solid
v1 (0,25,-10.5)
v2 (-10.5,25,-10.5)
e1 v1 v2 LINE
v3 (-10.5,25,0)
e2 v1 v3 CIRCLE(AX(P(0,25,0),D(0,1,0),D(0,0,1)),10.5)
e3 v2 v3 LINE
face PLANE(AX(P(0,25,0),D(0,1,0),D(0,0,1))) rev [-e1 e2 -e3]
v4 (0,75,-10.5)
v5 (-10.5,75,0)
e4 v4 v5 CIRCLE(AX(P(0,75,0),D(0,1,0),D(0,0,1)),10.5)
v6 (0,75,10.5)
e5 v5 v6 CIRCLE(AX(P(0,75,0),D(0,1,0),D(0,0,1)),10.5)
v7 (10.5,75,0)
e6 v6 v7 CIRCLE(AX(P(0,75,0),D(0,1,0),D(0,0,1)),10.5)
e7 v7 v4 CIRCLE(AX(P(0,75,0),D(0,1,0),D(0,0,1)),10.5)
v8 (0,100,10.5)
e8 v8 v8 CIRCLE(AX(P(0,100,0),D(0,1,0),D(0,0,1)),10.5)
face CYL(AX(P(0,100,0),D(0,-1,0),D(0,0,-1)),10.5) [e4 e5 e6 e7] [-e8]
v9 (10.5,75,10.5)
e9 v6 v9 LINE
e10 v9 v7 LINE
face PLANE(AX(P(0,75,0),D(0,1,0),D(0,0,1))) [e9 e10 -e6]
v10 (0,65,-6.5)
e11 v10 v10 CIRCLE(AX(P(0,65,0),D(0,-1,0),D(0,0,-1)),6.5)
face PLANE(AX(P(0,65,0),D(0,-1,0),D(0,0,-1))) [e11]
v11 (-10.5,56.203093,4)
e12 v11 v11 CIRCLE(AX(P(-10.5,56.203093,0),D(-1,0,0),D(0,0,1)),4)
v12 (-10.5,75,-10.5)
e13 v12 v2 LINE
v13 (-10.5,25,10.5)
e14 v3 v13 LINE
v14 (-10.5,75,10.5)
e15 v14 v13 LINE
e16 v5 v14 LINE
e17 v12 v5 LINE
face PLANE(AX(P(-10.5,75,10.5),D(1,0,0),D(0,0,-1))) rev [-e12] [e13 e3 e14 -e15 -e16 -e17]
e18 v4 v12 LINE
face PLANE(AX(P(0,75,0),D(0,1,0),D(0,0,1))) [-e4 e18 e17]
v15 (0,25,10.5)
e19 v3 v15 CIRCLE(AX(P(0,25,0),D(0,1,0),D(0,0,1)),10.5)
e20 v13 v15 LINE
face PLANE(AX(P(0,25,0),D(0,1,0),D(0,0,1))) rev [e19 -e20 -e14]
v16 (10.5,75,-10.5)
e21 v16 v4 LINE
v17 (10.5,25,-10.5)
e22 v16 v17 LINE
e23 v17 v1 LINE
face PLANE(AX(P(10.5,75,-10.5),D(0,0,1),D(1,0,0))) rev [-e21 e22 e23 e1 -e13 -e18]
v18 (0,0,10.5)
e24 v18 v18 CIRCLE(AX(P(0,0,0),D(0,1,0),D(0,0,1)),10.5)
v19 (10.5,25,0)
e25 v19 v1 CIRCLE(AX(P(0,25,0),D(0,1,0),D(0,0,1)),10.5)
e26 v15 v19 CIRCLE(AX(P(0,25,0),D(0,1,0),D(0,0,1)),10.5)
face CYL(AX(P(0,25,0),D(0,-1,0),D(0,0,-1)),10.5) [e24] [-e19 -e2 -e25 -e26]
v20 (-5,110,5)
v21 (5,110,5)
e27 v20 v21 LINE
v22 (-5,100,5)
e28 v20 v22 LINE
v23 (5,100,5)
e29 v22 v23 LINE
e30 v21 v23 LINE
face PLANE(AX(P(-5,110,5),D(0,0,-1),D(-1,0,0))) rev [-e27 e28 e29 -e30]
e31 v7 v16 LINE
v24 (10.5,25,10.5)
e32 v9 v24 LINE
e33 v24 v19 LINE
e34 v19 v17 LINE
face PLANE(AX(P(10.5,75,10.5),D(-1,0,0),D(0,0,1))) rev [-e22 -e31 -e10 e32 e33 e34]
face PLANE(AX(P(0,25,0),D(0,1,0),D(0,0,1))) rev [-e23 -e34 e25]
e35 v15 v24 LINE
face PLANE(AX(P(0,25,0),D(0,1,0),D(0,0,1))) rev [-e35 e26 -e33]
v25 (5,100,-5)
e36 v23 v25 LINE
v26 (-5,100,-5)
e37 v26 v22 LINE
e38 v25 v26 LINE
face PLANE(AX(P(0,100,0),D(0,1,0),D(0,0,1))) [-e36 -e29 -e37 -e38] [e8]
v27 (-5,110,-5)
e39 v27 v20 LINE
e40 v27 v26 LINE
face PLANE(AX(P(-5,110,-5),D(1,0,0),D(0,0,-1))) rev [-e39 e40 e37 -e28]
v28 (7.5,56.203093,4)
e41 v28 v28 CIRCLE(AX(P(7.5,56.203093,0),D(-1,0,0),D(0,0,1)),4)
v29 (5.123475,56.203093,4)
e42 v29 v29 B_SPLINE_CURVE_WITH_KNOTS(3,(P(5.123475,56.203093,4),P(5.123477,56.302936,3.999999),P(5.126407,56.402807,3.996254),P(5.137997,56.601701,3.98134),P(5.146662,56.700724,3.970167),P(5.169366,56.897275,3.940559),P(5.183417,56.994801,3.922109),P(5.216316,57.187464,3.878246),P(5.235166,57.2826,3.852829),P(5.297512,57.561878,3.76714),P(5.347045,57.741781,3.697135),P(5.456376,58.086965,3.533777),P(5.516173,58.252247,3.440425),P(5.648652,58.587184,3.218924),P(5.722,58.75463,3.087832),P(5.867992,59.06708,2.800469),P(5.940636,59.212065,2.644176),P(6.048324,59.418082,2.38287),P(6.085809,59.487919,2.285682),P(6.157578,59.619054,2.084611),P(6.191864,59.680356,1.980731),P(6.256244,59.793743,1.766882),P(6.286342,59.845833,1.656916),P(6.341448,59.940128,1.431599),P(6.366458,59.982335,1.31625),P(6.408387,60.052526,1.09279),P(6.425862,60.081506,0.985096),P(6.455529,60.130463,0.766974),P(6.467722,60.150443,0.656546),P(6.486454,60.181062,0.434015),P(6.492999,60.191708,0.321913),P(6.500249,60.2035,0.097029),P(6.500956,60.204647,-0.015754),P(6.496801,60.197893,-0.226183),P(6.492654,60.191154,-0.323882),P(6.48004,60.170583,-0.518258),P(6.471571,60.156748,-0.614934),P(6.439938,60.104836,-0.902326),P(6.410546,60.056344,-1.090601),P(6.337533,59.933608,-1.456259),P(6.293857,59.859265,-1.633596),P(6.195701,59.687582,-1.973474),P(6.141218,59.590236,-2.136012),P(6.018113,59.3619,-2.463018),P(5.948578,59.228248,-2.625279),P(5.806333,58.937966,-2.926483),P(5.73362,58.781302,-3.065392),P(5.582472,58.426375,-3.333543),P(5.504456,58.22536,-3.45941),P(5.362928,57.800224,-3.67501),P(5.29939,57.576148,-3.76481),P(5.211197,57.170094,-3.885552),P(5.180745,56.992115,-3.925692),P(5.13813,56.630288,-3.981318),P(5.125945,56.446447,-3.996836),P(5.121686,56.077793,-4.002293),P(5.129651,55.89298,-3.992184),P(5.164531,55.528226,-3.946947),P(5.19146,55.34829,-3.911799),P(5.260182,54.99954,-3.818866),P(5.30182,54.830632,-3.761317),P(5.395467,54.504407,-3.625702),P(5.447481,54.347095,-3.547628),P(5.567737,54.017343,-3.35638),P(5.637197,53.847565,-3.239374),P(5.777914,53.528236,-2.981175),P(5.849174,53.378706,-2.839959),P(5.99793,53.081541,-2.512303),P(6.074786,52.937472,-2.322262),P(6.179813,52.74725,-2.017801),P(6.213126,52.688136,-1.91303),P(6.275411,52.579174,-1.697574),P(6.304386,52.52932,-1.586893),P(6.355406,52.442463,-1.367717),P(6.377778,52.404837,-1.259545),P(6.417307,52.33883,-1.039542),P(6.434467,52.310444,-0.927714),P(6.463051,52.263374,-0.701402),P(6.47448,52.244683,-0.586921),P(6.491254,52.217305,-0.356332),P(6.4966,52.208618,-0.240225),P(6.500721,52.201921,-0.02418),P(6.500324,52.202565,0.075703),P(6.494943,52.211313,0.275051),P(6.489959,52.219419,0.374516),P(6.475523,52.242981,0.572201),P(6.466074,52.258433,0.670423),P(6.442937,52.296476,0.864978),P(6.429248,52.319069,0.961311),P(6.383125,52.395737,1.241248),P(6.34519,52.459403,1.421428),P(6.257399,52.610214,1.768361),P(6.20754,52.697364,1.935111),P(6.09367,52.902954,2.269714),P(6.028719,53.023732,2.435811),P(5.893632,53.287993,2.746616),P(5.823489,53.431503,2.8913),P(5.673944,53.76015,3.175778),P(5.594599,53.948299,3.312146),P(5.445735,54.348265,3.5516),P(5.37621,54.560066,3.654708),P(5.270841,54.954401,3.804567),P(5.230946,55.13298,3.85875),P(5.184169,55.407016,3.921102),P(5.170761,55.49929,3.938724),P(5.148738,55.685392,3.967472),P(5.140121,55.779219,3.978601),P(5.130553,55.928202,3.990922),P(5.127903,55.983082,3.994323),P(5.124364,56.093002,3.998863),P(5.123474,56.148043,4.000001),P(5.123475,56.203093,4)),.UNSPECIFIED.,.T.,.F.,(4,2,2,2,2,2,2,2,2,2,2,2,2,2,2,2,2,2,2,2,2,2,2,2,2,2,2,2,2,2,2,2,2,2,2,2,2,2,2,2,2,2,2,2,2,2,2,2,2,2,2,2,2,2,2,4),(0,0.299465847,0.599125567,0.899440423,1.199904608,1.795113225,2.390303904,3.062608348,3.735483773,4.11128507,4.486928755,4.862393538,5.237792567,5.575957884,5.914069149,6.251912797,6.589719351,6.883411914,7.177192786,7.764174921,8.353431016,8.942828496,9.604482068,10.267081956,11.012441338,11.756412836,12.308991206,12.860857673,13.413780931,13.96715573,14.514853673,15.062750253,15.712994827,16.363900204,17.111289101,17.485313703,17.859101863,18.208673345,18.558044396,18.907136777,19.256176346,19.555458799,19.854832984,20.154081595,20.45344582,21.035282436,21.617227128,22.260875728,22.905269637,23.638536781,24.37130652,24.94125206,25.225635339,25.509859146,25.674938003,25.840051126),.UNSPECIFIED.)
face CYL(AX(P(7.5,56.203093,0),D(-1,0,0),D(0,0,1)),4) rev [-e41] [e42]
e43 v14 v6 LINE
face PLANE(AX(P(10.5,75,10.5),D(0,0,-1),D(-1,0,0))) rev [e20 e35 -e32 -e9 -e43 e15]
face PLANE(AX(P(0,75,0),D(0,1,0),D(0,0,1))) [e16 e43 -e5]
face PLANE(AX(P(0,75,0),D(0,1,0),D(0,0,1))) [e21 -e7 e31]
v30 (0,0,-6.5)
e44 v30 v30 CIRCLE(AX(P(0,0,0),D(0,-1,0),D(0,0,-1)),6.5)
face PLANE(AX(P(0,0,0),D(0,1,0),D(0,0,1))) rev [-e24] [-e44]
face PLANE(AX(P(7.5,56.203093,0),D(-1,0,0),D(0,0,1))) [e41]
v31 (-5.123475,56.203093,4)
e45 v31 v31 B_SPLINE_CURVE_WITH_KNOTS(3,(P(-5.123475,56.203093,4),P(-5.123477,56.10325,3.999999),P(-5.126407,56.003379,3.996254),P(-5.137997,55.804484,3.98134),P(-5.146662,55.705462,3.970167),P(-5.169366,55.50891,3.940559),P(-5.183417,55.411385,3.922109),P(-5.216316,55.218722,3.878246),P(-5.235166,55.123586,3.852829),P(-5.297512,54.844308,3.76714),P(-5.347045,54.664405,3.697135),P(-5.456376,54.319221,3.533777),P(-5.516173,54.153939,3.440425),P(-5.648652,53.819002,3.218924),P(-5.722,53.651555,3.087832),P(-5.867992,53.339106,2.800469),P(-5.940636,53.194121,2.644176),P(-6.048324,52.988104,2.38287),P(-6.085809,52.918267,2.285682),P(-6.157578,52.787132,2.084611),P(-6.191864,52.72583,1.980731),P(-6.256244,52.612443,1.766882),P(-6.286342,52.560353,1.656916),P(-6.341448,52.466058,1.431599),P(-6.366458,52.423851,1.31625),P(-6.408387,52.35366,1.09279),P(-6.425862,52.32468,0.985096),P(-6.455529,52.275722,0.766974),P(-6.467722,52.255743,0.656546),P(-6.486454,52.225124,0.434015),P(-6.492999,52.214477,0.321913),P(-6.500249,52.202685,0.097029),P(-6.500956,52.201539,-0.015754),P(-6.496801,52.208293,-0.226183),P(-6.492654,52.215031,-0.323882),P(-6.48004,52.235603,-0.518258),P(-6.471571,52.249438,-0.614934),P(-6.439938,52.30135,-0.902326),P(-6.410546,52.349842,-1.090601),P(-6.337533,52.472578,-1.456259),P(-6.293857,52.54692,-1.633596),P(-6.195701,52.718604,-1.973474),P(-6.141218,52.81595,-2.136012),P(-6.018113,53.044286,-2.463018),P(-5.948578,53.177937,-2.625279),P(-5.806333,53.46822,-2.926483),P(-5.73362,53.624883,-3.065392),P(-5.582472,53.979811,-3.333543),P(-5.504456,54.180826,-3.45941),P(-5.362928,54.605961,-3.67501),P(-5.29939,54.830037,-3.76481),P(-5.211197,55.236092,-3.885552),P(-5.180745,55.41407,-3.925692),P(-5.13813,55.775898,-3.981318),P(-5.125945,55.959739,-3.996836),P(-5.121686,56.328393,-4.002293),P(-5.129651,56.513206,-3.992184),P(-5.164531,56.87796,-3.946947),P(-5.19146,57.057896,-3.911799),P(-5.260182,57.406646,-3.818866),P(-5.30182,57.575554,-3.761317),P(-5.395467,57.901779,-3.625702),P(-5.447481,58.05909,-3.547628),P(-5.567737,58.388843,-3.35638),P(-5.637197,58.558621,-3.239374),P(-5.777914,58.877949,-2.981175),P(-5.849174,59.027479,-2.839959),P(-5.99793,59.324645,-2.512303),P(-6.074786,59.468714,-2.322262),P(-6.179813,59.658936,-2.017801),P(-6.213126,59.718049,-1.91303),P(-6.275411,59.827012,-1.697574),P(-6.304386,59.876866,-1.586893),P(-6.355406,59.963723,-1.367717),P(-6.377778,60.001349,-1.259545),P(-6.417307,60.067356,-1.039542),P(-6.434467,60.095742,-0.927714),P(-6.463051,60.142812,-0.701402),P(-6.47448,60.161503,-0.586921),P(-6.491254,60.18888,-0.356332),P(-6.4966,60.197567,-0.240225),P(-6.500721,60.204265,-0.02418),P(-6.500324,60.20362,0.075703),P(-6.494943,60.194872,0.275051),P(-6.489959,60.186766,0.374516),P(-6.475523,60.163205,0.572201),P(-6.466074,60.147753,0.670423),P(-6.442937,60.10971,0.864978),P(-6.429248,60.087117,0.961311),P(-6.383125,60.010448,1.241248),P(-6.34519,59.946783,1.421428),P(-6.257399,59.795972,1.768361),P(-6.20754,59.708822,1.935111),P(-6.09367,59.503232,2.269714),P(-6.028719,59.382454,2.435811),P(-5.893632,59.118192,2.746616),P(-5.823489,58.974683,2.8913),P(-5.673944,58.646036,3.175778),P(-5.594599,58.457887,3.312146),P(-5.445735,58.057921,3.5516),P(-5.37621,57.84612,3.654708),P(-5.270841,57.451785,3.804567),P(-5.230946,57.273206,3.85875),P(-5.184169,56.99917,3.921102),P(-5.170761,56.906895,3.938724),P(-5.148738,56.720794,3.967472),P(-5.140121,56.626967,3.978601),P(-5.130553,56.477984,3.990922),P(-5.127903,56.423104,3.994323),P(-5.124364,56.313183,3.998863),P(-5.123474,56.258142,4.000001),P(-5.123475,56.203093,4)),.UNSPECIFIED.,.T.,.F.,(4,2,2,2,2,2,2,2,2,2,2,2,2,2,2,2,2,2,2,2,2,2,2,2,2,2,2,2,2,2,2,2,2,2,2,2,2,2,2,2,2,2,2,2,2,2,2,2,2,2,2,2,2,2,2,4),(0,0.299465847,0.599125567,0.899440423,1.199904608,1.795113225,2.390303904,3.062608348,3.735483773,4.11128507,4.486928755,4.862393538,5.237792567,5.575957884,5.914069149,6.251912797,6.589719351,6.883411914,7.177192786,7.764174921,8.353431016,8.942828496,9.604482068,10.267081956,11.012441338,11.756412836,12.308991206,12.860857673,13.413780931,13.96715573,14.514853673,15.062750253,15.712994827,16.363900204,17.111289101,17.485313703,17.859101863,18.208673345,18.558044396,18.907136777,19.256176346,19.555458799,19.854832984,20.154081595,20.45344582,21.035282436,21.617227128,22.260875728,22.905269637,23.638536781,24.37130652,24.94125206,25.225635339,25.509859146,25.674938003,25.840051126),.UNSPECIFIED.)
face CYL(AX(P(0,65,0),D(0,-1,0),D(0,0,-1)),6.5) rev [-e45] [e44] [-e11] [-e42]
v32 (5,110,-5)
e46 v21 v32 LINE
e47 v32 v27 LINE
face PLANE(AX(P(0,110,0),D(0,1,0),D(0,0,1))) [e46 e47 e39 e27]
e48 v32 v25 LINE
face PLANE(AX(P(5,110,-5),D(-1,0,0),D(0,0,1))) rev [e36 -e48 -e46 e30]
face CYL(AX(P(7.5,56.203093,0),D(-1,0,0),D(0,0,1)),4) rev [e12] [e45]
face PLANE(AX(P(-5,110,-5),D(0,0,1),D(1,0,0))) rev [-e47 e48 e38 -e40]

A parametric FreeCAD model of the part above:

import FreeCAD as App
import Part
import Sketcher

doc = App.newDocument("Part")
body = doc.addObject("PartDesign::Body", "Body")

# Sketch on XZ plane
sketch1 = body.newObject("Sketcher::SketchObject", "Sketch")
sketch1.AttachmentSupport = (doc.getObject("XZ_Plane"), [""])
sketch1.MapMode = "FlatFace"
sketch1.addGeometry(Part.Circle(App.Vector(0, 0, 0), App.Vector(0, 0, 1), 10), False)
sketch1.addConstraint([
    Sketcher.Constraint("Coincident", 0, 3, -1, 1),
    Sketcher.Constraint("Diameter", 0, 21.0),
])
pad1 = body.newObject("PartDesign::Pad", "Pad")
pad1.Profile = sketch1
pad1.Length = 25
pad1.Reversed = True

# Sketch on XZ plane
sketch2 = body.newObject("Sketcher::SketchObject", "Sketch001")
sketch2.AttachmentSupport = (doc.getObject("XZ_Plane"), [""])
sketch2.MapMode = "FlatFace"
sketch2.AttachmentOffset = App.Placement(App.Vector(0, 0, -25), App.Rotation())
sketch2.addGeometry([
    Part.LineSegment(App.Vector(-10, -10, 0), App.Vector(-10, 10, 0)),
    Part.LineSegment(App.Vector(-10, 10, 0), App.Vector(10, 10, 0)),
    Part.LineSegment(App.Vector(10, 10, 0), App.Vector(10, -10, 0)),
    Part.LineSegment(App.Vector(10, -10, 0), App.Vector(-10, -10, 0)),
], False)
sketch2.addConstraint([
    Sketcher.Constraint("Coincident", 0, 2, 1, 1),
    Sketcher.Constraint("Coincident", 1, 2, 2, 1),
    Sketcher.Constraint("Coincident", 2, 2, 3, 1),
    Sketcher.Constraint("Coincident", 3, 2, 0, 1),
    Sketcher.Constraint("Vertical", 0),
    Sketcher.Constraint("Horizontal", 1),
    Sketcher.Constraint("Vertical", 2),
    Sketcher.Constraint("Horizontal", 3),
    Sketcher.Constraint("Symmetric", 0, 2, 2, 2, -1, 1),
    Sketcher.Constraint("Equal", 3, 0),
    Sketcher.Constraint("DistanceX", 1, 1, 1, 2, 21.0),
])
pad2 = body.newObject("PartDesign::Pad", "Pad001")
pad2.Profile = sketch2
pad2.Length = 50
pad2.Reversed = True

# Sketch on XZ plane
sketch3 = body.newObject("Sketcher::SketchObject", "Sketch002")
sketch3.AttachmentSupport = (doc.getObject("XZ_Plane"), [""])
sketch3.MapMode = "FlatFace"
sketch3.AttachmentOffset = App.Placement(App.Vector(0, 0, -75), App.Rotation())
sketch3.addGeometry(Part.Circle(App.Vector(0, 0, 0), App.Vector(0, 0, 1), 10), False)
sketch3.addConstraint([
    Sketcher.Constraint("Coincident", 0, 3, -1, 1),
    Sketcher.Constraint("Diameter", 0, 21.0),
])
pad3 = body.newObject("PartDesign::Pad", "Pad002")
pad3.Profile = sketch3
pad3.Length = 25
pad3.Reversed = True

# Sketch on XZ plane
sketch4 = body.newObject("Sketcher::SketchObject", "Sketch003")
sketch4.AttachmentSupport = (doc.getObject("XZ_Plane"), [""])
sketch4.MapMode = "FlatFace"
sketch4.AttachmentOffset = App.Placement(App.Vector(0, 0, -100), App.Rotation())
sketch4.addGeometry([
    Part.LineSegment(App.Vector(-5, -5, 0), App.Vector(-5, 5, 0)),
    Part.LineSegment(App.Vector(-5, 5, 0), App.Vector(5, 5, 0)),
    Part.LineSegment(App.Vector(5, 5, 0), App.Vector(5, -5, 0)),
    Part.LineSegment(App.Vector(5, -5, 0), App.Vector(-5, -5, 0)),
], False)
sketch4.addConstraint([
    Sketcher.Constraint("Coincident", 0, 2, 1, 1),
    Sketcher.Constraint("Coincident", 1, 2, 2, 1),
    Sketcher.Constraint("Coincident", 2, 2, 3, 1),
    Sketcher.Constraint("Coincident", 3, 2, 0, 1),
    Sketcher.Constraint("Vertical", 0),
    Sketcher.Constraint("Horizontal", 1),
    Sketcher.Constraint("Vertical", 2),
    Sketcher.Constraint("Horizontal", 3),
    Sketcher.Constraint("Symmetric", 0, 2, 2, 2, -1, 1),
    Sketcher.Constraint("Equal", 3, 0),
    Sketcher.Constraint("DistanceX", 1, 1, 1, 2, 10.0),
])
pad4 = body.newObject("PartDesign::Pad", "Pad003")
pad4.Profile = sketch4
pad4.Length = 10
pad4.Reversed = True

# Sketch on YZ plane
sketch5 = body.newObject("Sketcher::SketchObject", "Sketch004")
sketch5.AttachmentSupport = (doc.getObject("YZ_Plane"), [""])
sketch5.MapMode = "FlatFace"
sketch5.AttachmentOffset = App.Placement(App.Vector(0, 0, -10.5), App.Rotation())
sketch5.addGeometry(Part.Circle(App.Vector(56.2, 0, 0), App.Vector(0, 0, 1), 4), False)
sketch5.addConstraint([
    Sketcher.Constraint("PointOnObject", 0, 3, -1),
    Sketcher.Constraint("Diameter", 0, 8.0),
    Sketcher.Constraint("DistanceX", -1, 1, 0, 3, 56.203093),
])
pocket1 = body.newObject("PartDesign::Pocket", "Pocket")
pocket1.Profile = sketch5
pocket1.Length = 18
pocket1.Reversed = True

# Sketch on XZ plane
sketch6 = body.newObject("Sketcher::SketchObject", "Sketch005")
sketch6.AttachmentSupport = (doc.getObject("XZ_Plane"), [""])
sketch6.MapMode = "FlatFace"
sketch6.addGeometry(Part.Circle(App.Vector(0, 0, 0), App.Vector(0, 0, 1), 6), False)
sketch6.addConstraint([
    Sketcher.Constraint("Coincident", 0, 3, -1, 1),
    Sketcher.Constraint("Diameter", 0, 13.0),
])
pocket2 = body.newObject("PartDesign::Pocket", "Pocket001")
pocket2.Profile = sketch6
pocket2.Length = 65

doc.recompute()
